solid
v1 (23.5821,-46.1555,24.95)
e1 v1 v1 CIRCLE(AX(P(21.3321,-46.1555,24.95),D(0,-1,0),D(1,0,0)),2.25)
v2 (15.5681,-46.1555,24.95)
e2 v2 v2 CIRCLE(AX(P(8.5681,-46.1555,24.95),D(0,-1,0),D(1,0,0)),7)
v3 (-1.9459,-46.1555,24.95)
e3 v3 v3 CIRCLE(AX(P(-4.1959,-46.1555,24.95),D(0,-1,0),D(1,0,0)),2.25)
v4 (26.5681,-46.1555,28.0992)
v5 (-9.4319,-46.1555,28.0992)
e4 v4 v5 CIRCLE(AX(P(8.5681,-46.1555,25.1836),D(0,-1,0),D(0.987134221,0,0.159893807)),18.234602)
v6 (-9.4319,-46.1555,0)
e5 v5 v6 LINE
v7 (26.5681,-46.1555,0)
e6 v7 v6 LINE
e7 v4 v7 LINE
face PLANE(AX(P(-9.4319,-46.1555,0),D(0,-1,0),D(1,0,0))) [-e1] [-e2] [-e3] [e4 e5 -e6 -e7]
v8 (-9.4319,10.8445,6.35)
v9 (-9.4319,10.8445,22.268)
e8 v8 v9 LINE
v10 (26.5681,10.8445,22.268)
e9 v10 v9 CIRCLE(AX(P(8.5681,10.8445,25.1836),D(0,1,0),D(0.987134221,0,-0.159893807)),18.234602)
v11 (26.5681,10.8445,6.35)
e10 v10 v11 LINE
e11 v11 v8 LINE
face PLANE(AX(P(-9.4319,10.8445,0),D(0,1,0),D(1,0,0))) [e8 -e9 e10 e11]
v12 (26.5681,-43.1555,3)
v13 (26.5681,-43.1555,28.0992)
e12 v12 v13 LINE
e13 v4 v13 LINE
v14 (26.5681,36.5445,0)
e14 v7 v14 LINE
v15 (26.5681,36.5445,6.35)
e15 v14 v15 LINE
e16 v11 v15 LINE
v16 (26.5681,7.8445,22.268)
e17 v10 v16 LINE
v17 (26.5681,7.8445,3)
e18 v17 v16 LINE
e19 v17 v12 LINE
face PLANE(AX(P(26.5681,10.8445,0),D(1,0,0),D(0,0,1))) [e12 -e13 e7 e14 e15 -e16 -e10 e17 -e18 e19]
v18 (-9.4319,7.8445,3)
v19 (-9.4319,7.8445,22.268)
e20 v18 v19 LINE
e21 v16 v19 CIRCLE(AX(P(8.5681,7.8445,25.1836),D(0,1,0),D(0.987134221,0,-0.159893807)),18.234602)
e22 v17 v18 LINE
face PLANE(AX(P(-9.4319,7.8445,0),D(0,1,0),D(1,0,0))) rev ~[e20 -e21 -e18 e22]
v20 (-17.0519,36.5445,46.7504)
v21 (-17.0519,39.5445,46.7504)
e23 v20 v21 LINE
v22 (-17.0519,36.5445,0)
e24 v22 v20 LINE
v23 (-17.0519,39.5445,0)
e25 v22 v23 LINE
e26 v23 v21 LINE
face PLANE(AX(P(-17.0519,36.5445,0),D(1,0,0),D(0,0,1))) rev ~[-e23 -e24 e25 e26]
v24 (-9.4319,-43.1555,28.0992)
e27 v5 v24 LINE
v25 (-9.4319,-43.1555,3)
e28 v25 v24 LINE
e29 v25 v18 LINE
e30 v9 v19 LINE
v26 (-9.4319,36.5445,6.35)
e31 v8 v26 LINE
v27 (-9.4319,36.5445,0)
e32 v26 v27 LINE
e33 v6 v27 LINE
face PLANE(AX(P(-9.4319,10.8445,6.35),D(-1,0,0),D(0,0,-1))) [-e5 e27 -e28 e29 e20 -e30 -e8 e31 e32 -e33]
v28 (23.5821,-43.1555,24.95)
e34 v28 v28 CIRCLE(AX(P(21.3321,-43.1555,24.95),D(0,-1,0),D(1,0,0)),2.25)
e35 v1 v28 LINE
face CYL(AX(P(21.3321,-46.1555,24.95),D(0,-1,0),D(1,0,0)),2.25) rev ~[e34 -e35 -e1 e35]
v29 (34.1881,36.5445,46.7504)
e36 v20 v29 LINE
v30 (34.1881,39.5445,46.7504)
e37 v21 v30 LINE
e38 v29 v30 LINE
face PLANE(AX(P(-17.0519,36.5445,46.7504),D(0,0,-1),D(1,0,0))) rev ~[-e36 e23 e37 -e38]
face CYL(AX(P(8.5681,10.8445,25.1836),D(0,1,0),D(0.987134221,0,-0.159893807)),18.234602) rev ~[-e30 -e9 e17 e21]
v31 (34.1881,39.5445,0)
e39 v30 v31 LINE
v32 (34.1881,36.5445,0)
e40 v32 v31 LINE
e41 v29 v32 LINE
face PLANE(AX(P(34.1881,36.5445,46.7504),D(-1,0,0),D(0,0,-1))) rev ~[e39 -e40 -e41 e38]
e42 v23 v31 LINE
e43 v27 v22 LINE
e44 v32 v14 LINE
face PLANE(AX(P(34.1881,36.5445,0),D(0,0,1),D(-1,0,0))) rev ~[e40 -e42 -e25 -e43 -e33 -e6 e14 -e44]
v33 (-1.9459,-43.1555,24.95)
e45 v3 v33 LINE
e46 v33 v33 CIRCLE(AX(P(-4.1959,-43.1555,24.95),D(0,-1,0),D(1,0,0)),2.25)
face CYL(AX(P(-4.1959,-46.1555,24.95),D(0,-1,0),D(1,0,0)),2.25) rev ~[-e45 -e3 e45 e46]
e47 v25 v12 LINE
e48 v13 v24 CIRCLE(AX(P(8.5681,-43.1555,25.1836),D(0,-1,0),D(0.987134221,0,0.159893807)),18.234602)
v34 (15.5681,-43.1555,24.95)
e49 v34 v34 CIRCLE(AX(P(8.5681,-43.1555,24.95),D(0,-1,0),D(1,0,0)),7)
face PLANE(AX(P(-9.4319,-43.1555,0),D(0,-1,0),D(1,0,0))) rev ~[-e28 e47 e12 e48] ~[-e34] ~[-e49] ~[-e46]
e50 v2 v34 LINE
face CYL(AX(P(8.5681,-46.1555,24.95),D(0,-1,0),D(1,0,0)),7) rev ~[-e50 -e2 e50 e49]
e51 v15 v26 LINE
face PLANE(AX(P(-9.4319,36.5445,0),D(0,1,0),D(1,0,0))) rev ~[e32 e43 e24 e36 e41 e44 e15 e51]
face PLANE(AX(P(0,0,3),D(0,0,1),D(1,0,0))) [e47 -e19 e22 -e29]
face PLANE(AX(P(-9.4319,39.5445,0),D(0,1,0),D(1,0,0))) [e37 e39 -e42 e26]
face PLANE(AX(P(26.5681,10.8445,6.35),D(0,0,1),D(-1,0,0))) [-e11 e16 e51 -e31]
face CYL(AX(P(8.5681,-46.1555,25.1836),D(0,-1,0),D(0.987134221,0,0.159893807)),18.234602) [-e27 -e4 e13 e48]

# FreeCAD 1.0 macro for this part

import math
import FreeCAD as App
import Part
import Sketcher

V = App.Vector

doc = App.newDocument("Part")
body = doc.addObject("PartDesign::Body", "Body")

# Sketch on XY plane
sketch1 = body.newObject("Sketcher::SketchObject", "Sketch")
sketch1.AttachmentSupport = (doc.getObject("XY_Plane"), [""])
sketch1.MapMode = "FlatFace"
sketch1.addGeometry(Part.LineSegment(V(27, 11, 0), V(-9, 11, 0)), False)
sketch1.addGeometry(Part.LineSegment(V(-9, 11, 0), V(-9, -46, 0)), False)
sketch1.addGeometry(Part.LineSegment(V(-9, -46, 0), V(27, -46, 0)), False)
sketch1.addGeometry(Part.LineSegment(V(27, -46, 0), V(27, 11, 0)), False)
sketch1.addConstraint(Sketcher.Constraint("Coincident", 0, 2, 1, 1))
sketch1.addConstraint(Sketcher.Constraint("Coincident", 1, 2, 2, 1))
sketch1.addConstraint(Sketcher.Constraint("Coincident", 2, 2, 3, 1))
sketch1.addConstraint(Sketcher.Constraint("Coincident", 3, 2, 0, 1))
sketch1.addConstraint(Sketcher.Constraint("Horizontal", 0))
sketch1.addConstraint(Sketcher.Constraint("Vertical", 1))
sketch1.addConstraint(Sketcher.Constraint("Horizontal", 2))
sketch1.addConstraint(Sketcher.Constraint("Vertical", 3))
sketch1.addConstraint(Sketcher.Constraint("DistanceX", 0, 2, 0, 1, 36.0))
sketch1.addConstraint(Sketcher.Constraint("DistanceY", 1, 2, 1, 1, 57.0))
sketch1.addConstraint(Sketcher.Constraint("DistanceX", 0, 2, -1, 1, 9.432))
sketch1.addConstraint(Sketcher.Constraint("DistanceY", -1, 1, 0, 2, 10.8445))
pad1 = body.newObject("PartDesign::Pad", "Pad")
pad1.Profile = sketch1
pad1.Length = 3

# Sketch on XZ plane
sketch2 = body.newObject("Sketcher::SketchObject", "Sketch001")
sketch2.AttachmentSupport = (doc.getObject("XZ_Plane"), [""])
sketch2.MapMode = "FlatFace"
sketch2.AttachmentOffset = App.Placement(V(0, 0, -10.8445), App.Rotation())
sketch2.addGeometry(Part.LineSegment(V(27, 3, 0), V(-9, 3, 0)), False)
sketch2.addGeometry(Part.LineSegment(V(-9, 3, 0), V(-9, 22, 0)), False)
sketch2.addGeometry(Part.ArcOfCircle(Part.Circle(V(9, 25, 0), V(0, 0, 1), 18), math.radians(-171), math.radians(-9)), False)
sketch2.addGeometry(Part.LineSegment(V(27, 22, 0), V(27, 3, 0)), False)
sketch2.addConstraint(Sketcher.Constraint("Coincident", 0, 2, 1, 1))
sketch2.addConstraint(Sketcher.Constraint("Coincident", 1, 2, 2, 1))
sketch2.addConstraint(Sketcher.Constraint("Coincident", 2, 2, 3, 1))
sketch2.addConstraint(Sketcher.Constraint("Coincident", 3, 2, 0, 1))
sketch2.addConstraint(Sketcher.Constraint("Horizontal", 0))
sketch2.addConstraint(Sketcher.Constraint("Vertical", 1))
sketch2.addConstraint(Sketcher.Constraint("Vertical", 3))
sketch2.addConstraint(Sketcher.Constraint("Horizontal", 1, 2, 2, 2))
sketch2.addConstraint(Sketcher.Constraint("DistanceX", 0, 2, 0, 1, 36.0))
sketch2.addConstraint(Sketcher.Constraint("DistanceY", -1, 1, 1, 2, 22.268))
sketch2.addConstraint(Sketcher.Constraint("DistanceY", -1, 1, 0, 2, 3.0))
sketch2.addConstraint(Sketcher.Constraint("Radius", 2, 18.2346))
sketch2.addConstraint(Sketcher.Constraint("DistanceX", -1, 1, 2, 3, 8.568))
pad2 = body.newObject("PartDesign::Pad", "Pad001")
pad2.Profile = sketch2
pad2.Length = 3

# Sketch on XZ plane
sketch3 = body.newObject("Sketcher::SketchObject", "Sketch002")
sketch3.AttachmentSupport = (doc.getObject("XZ_Plane"), [""])
sketch3.MapMode = "FlatFace"
sketch3.AttachmentOffset = App.Placement(V(0, 0, 46.1555), App.Rotation())
sketch3.addGeometry(Part.LineSegment(V(27, 3, 0), V(27, 28, 0)), False)
sketch3.addGeometry(Part.ArcOfCircle(Part.Circle(V(9, 25, 0), V(0, 0, 1), 18), math.radians(9), math.radians(171)), False)
sketch3.addGeometry(Part.LineSegment(V(-9, 28, 0), V(-9, 3, 0)), False)
sketch3.addGeometry(Part.LineSegment(V(-9, 3, 0), V(27, 3, 0)), False)
sketch3.addConstraint(Sketcher.Constraint("Coincident", 0, 2, 1, 1))
sketch3.addConstraint(Sketcher.Constraint("Coincident", 1, 2, 2, 1))
sketch3.addConstraint(Sketcher.Constraint("Coincident", 2, 2, 3, 1))
sketch3.addConstraint(Sketcher.Constraint("Coincident", 3, 2, 0, 1))
sketch3.addConstraint(Sketcher.Constraint("Vertical", 0))
sketch3.addConstraint(Sketcher.Constraint("Vertical", 2))
sketch3.addConstraint(Sketcher.Constraint("Horizontal", 3))
sketch3.addConstraint(Sketcher.Constraint("Horizontal", 0, 2, 1, 2))
sketch3.addConstraint(Sketcher.Constraint("DistanceX", 3, 1, 3, 2, 36.0))
sketch3.addConstraint(Sketcher.Constraint("DistanceY", -1, 1, 2, 2, 3.0))
sketch3.addConstraint(Sketcher.Constraint("Radius", 1, 18.2346))
sketch3.addConstraint(Sketcher.Constraint("DistanceY", 0, 1, 0, 2, 25.0992))
sketch3.addConstraint(Sketcher.Constraint("DistanceX", -1, 1, 1, 3, 8.568))
pad3 = body.newObject("PartDesign::Pad", "Pad002")
pad3.Profile = sketch3
pad3.Length = 3
pad3.Reversed = True

# Sketch on XZ plane
sketch4 = body.newObject("Sketcher::SketchObject", "Sketch003")
sketch4.AttachmentSupport = (doc.getObject("XZ_Plane"), [""])
sketch4.MapMode = "FlatFace"
sketch4.AttachmentOffset = App.Placement(V(0, 0, 46.1555), App.Rotation())
sketch4.addGeometry(Part.Circle(V(8.6, 24.9, 0), V(0, 0, 1), 7), False)
sketch4.addGeometry(Part.Circle(V(-4.2, 24.9, 0), V(0, 0, 1), 2.2), False)
sketch4.addGeometry(Part.Circle(V(21.3, 24.9, 0), V(0, 0, 1), 2.2), False)
sketch4.addConstraint(Sketcher.Constraint("Equal", 1, 2))
sketch4.addConstraint(Sketcher.Constraint("Horizontal", 0, 3, 1, 3))
sketch4.addConstraint(Sketcher.Constraint("Horizontal", 1, 3, 2, 3))
sketch4.addConstraint(Sketcher.Constraint("Diameter", 0, 14.0))
sketch4.addConstraint(Sketcher.Constraint("Diameter", 1, 4.5))
sketch4.addConstraint(Sketcher.Constraint("DistanceY", -1, 1, 0, 3, 24.95))
sketch4.addConstraint(Sketcher.Constraint("DistanceX", -1, 1, 0, 3, 8.568))
sketch4.addConstraint(Sketcher.Constraint("DistanceX", 1, 3, -1, 1, 4.196))
sketch4.addConstraint(Sketcher.Constraint("DistanceX", -1, 1, 2, 3, 21.332))
pocket1 = body.newObject("PartDesign::Pocket", "Pocket")
pocket1.Profile = sketch4
pocket1.Length = 3

# Sketch on XZ plane
sketch5 = body.newObject("Sketcher::SketchObject", "Sketch004")
sketch5.AttachmentSupport = (doc.getObject("XZ_Plane"), [""])
sketch5.MapMode = "FlatFace"
sketch5.AttachmentOffset = App.Placement(V(0, 0, -10.8445), App.Rotation())
sketch5.addGeometry(Part.LineSegment(V(27, 6, 0), V(27, 0, 0)), False)
sketch5.addGeometry(Part.LineSegment(V(27, 0, 0), V(-9, 0, 0)), False)
sketch5.addGeometry(Part.LineSegment(V(-9, 0, 0), V(-9, 6, 0)), False)
sketch5.addGeometry(Part.LineSegment(V(-9, 6, 0), V(27, 6, 0)), False)
sketch5.addConstraint(Sketcher.Constraint("Coincident", 0, 2, 1, 1))
sketch5.addConstraint(Sketcher.Constraint("Coincident", 1, 2, 2, 1))
sketch5.addConstraint(Sketcher.Constraint("Coincident", 2, 2, 3, 1))
sketch5.addConstraint(Sketcher.Constraint("Coincident", 3, 2, 0, 1))
sketch5.addConstraint(Sketcher.Constraint("Vertical", 0))
sketch5.addConstraint(Sketcher.Constraint("Horizontal", 1))
sketch5.addConstraint(Sketcher.Constraint("Vertical", 2))
sketch5.addConstraint(Sketcher.Constraint("Horizontal", 3))
sketch5.addConstraint(Sketcher.Constraint("PointOnObject", 0, 2, -1))
sketch5.addConstraint(Sketcher.Constraint("DistanceY", 0, 2, 0, 1, 6.35))
sketch5.addConstraint(Sketcher.Constraint("DistanceX", 1, 2, 1, 1, 36.0))
sketch5.addConstraint(Sketcher.Constraint("DistanceX", -1, 1, 0, 2, 26.568))
pad4 = body.newObject("PartDesign::Pad", "Pad003")
pad4.Profile = sketch5
pad4.Length = 25.7
pad4.Reversed = True

# Sketch on XZ plane
sketch6 = body.newObject("Sketcher::SketchObject", "Sketch005")
sketch6.AttachmentSupport = (doc.getObject("XZ_Plane"), [""])
sketch6.MapMode = "FlatFace"
sketch6.AttachmentOffset = App.Placement(V(0, 0, -36.5445), App.Rotation())
sketch6.addGeometry(Part.LineSegment(V(34, 47, 0), V(34, 0, 0)), False)
sketch6.addGeometry(Part.LineSegment(V(34, 0, 0), V(-17, 0, 0)), False)
sketch6.addGeometry(Part.LineSegment(V(-17, 0, 0), V(-17, 47, 0)), False)
sketch6.addGeometry(Part.LineSegment(V(-17, 47, 0), V(34, 47, 0)), False)
sketch6.addConstraint(Sketcher.Constraint("Coincident", 0, 2, 1, 1))
sketch6.addConstraint(Sketcher.Constraint("Coincident", 1, 2, 2, 1))
sketch6.addConstraint(Sketcher.Constraint("Coincident", 2, 2, 3, 1))
sketch6.addConstraint(Sketcher.Constraint("Coincident", 3, 2, 0, 1))
sketch6.addConstraint(Sketcher.Constraint("Vertical", 0))
sketch6.addConstraint(Sketcher.Constraint("Horizontal", 1))
sketch6.addConstraint(Sketcher.Constraint("Vertical", 2))
sketch6.addConstraint(Sketcher.Constraint("Horizontal", 3))
sketch6.addConstraint(Sketcher.Constraint("PointOnObject", 0, 2, -1))
sketch6.addConstraint(Sketcher.Constraint("DistanceX", 1, 2, 1, 1, 51.24))
sketch6.addConstraint(Sketcher.Constraint("DistanceY", 0, 2, 0, 1, 46.7504))
sketch6.addConstraint(Sketcher.Constraint("DistanceX", -1, 1, 0, 2, 34.188))
pad5 = body.newObject("PartDesign::Pad", "Pad004")
pad5.Profile = sketch6
pad5.Length = 3
pad5.Reversed = True

doc.recompute()
